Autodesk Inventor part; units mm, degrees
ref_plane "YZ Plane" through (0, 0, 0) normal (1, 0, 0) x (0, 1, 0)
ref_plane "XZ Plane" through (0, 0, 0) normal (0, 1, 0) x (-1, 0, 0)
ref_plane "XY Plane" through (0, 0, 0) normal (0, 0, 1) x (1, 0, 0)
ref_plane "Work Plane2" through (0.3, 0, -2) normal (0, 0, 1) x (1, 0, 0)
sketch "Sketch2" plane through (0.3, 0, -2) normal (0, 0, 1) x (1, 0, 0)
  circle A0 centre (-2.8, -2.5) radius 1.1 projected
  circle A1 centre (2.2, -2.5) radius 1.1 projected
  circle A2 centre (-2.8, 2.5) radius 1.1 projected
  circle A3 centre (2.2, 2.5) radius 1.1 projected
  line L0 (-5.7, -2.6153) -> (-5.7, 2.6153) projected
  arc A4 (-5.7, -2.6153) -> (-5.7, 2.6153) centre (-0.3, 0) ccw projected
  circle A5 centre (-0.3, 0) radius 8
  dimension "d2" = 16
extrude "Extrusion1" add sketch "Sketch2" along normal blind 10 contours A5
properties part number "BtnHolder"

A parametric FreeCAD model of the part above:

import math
import FreeCAD as App
import Part
import Sketcher
from FreeCAD import Vector

doc = App.newDocument("Part")
params = doc.addObject("Spreadsheet::Sheet", "Params")
for row, (alias, value) in enumerate([
    ("sketch1_diameter", "16 mm"),
    ("sketch1_radius", "6 mm"),
    ("pad1_length", "10 mm"),
], start=1):
    params.set(f"A{row}", alias)
    params.set(f"B{row}", "=" + value)
    params.setAlias(f"B{row}", alias)

body = doc.addObject("PartDesign::Body", "Body")

# Sketch on XY plane
sketch1 = body.newObject("Sketcher::SketchObject", "Sketch")
sketch1.AttachmentSupport = (doc.getObject("XY_Plane"), [""])
sketch1.MapMode = "FlatFace"
sketch1.AttachmentOffset = App.Placement(Vector(0, 0, -2), App.Rotation())
sketch1.addGeometry(Part.Circle(Vector(0, 0, 0), Vector(0, 0, 1), 8), False)
sketch1.addGeometry(Part.ArcOfCircle(Part.Circle(Vector(0, 0, 0), Vector(0, 0, 1), 5.999983), math.radians(-154.158406), math.radians(154.158406)), False)
sketch1.addGeometry(Part.LineSegment(Vector(-5.4, -2.6153, 0), Vector(-5.4, 2.6153, 0)), False)
sketch1.addConstraint(Sketcher.Constraint("Coincident", 1, 1, 2, 1))
sketch1.addConstraint(Sketcher.Constraint("Coincident", 2, 2, 1, 2))
sketch1.addConstraint(Sketcher.Constraint("Vertical", 2))
sketch1.addConstraint(Sketcher.Constraint("Coincident", 0, 3, -1, 1))
sketch1.addConstraint(Sketcher.Constraint("Coincident", 1, 3, -1, 1))
sketch1.addConstraint(Sketcher.Constraint("Diameter", 0, 16.0))
sketch1.addConstraint(Sketcher.Constraint("Radius", 1, 6.0))
sketch1.addConstraint(Sketcher.Constraint("DistanceX", 1, 1, -1, 1, 5.4))
sketch1.setExpression("Constraints[5]", "Params.sketch1_diameter")
sketch1.setExpression("Constraints[6]", "Params.sketch1_radius")
pad1 = body.newObject("PartDesign::Pad", "Pad")
pad1.Profile = sketch1
pad1.setExpression("Length", "Params.pad1_length")

doc.recompute()
